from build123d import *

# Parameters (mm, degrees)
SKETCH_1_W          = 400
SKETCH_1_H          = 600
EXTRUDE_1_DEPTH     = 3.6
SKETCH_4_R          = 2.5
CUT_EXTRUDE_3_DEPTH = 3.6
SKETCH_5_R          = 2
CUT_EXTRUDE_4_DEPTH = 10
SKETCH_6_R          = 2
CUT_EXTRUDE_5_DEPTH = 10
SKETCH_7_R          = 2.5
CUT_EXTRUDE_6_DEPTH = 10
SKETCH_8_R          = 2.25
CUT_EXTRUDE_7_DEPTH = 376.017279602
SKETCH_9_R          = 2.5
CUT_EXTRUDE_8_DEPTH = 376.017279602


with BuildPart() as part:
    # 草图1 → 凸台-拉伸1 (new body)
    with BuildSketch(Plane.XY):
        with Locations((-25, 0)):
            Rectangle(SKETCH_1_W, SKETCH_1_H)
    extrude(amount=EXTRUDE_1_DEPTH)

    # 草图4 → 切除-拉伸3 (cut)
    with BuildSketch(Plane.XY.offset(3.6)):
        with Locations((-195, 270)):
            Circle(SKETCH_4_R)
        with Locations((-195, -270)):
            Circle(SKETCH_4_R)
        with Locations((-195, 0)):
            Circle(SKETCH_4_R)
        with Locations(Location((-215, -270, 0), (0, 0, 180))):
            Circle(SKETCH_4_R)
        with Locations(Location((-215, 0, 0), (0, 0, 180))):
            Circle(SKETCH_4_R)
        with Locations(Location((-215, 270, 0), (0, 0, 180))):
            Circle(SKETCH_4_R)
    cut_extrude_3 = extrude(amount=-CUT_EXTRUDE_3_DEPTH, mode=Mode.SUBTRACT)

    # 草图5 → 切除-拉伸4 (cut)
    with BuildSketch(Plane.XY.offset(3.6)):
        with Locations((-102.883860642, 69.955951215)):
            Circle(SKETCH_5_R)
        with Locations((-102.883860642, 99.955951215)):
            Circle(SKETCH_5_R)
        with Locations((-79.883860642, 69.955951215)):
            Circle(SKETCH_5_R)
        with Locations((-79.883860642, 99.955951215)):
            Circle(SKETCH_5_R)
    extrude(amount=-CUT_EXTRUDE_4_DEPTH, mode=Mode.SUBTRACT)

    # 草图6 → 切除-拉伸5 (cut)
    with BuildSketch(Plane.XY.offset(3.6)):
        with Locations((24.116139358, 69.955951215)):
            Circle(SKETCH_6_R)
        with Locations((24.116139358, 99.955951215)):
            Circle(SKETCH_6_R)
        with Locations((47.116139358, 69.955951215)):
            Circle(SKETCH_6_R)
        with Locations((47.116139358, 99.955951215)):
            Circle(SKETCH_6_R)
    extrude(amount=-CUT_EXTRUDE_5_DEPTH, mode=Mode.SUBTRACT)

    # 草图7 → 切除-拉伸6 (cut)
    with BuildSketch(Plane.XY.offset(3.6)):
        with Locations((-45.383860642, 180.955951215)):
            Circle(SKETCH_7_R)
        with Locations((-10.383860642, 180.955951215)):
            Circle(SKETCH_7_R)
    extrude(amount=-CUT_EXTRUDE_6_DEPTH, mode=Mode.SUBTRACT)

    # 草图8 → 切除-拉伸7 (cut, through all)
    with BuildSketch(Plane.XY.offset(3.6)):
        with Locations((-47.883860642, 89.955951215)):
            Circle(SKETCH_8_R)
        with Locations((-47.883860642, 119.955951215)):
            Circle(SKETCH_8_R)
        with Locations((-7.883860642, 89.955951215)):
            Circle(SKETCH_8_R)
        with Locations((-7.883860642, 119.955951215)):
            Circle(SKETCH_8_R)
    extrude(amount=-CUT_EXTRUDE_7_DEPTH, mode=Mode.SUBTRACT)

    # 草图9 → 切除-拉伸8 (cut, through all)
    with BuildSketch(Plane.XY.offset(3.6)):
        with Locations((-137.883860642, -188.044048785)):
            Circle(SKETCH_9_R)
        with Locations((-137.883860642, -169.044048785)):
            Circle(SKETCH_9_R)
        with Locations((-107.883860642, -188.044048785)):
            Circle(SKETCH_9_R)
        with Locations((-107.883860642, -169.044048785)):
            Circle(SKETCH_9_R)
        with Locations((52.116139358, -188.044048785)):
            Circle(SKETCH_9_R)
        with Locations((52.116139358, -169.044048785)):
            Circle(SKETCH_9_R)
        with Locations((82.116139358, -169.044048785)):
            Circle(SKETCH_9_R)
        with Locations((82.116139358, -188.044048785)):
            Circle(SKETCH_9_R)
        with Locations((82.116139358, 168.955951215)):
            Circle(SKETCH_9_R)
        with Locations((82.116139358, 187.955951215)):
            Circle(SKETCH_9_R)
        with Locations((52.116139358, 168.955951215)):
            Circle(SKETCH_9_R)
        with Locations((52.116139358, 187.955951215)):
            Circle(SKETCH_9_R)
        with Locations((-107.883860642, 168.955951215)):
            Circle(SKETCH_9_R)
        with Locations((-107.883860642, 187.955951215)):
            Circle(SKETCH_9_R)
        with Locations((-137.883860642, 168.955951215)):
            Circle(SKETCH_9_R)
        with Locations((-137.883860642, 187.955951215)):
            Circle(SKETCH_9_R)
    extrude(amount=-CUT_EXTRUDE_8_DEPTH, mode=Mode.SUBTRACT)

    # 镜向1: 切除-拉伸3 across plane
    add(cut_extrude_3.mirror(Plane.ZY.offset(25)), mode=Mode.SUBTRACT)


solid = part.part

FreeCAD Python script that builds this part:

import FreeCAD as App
import Part
import Sketcher
Q = App.Units.Quantity


def add_polygon(sketch, points):
    """Adds a closed chain of lines whose ends are joined by coincident constraints."""
    first, n = sketch.GeometryCount, len(points)
    for a, b in zip(points, points[1:] + points[:1]):
        sketch.addGeometry(Part.LineSegment(App.Vector(*a, 0), App.Vector(*b, 0)), False)
    for i in range(n):
        sketch.addConstraint(Sketcher.Constraint("Coincident", first + i, 2, first + (i + 1) % n, 1))

doc = App.newDocument("Part")
body = doc.addObject("PartDesign::Body", "Body")

# Sketch on XY plane
sketch1 = body.newObject("Sketcher::SketchObject", "Sketch")
sketch1.AttachmentSupport = (doc.getObject("XY_Plane"), [""])
sketch1.MapMode = "FlatFace"
add_polygon(sketch1, [(-225, 300), (-225, -300), (175, -300), (175, 300)])  # lines 0-3
sketch1.addConstraint([
    Sketcher.Constraint("Vertical", 0),
    Sketcher.Constraint("Horizontal", 1),
    Sketcher.Constraint("Vertical", 2),
    Sketcher.Constraint("Horizontal", 3),
    Sketcher.Constraint("DistanceX", 1, 1, 1, 2, Q("400 mm")),
    Sketcher.Constraint("DistanceY", 0, 2, 0, 1, Q("600 mm")),
    Sketcher.Constraint("DistanceX", 0, 2, -1, 1, Q("225 mm")),
    Sketcher.Constraint("DistanceY", 0, 2, -1, 1, Q("300 mm")),
])
pad1 = body.newObject("PartDesign::Pad", "Pad")
pad1.Profile = sketch1
pad1.Length = 3.6

# Sketch on XY plane
sketch2 = body.newObject("Sketcher::SketchObject", "Sketch001")
sketch2.AttachmentSupport = (doc.getObject("XY_Plane"), [""])
sketch2.MapMode = "FlatFace"
sketch2.AttachmentOffset = App.Placement(App.Vector(0, 0, 3.6), App.Rotation())
sketch2.addGeometry([
    Part.Circle(App.Vector(-195, 270, 0), App.Vector(0, 0, 1), 2.5),  # 0
    Part.Circle(App.Vector(-195, -270, 0), App.Vector(0, 0, 1), 2.5),  # 1
    Part.Circle(App.Vector(-195, 0, 0), App.Vector(0, 0, 1), 2.5),  # 2
    Part.Circle(App.Vector(-215, -270, 0), App.Vector(0, 0, 1), 2.5),  # 3
    Part.Circle(App.Vector(-215, 0, 0), App.Vector(0, 0, 1), 2.5),  # 4
    Part.Circle(App.Vector(-215, 270, 0), App.Vector(0, 0, 1), 2.5),  # 5
], False)
sketch2.addConstraint([
    Sketcher.Constraint("Equal", 0, 1),
    Sketcher.Constraint("Equal", 1, 2),
    Sketcher.Constraint("Equal", 2, 3),
    Sketcher.Constraint("Equal", 3, 4),
    Sketcher.Constraint("Equal", 4, 5),
    Sketcher.Constraint("Symmetric", 0, 3, 1, 3, -1),
    Sketcher.Constraint("Symmetric", 3, 3, 5, 3, -1),
    Sketcher.Constraint("PointOnObject", 2, 3, -1),
    Sketcher.Constraint("PointOnObject", 4, 3, -1),
    Sketcher.Constraint("Horizontal", 1, 3, 3, 3),
    Sketcher.Constraint("Vertical", 1, 3, 2, 3),
    Sketcher.Constraint("Vertical", 3, 3, 4, 3),
    Sketcher.Constraint("Diameter", 0, Q("5 mm")),
    Sketcher.Constraint("DistanceX", 0, 3, -1, 1, Q("195 mm")),
    Sketcher.Constraint("DistanceY", -1, 1, 0, 3, Q("270 mm")),
    Sketcher.Constraint("DistanceX", 3, 3, -1, 1, Q("215 mm")),
])
pocket1 = body.newObject("PartDesign::Pocket", "Pocket")
pocket1.Profile = sketch2
pocket1.Length = 3.6

# Sketch on XY plane
sketch3 = body.newObject("Sketcher::SketchObject", "Sketch002")
sketch3.AttachmentSupport = (doc.getObject("XY_Plane"), [""])
sketch3.MapMode = "FlatFace"
sketch3.AttachmentOffset = App.Placement(App.Vector(0, 0, 3.6), App.Rotation())
sketch3.addGeometry([
    Part.Circle(App.Vector(-102.883861, 69.955951, 0), App.Vector(0, 0, 1), 2),
    Part.Circle(App.Vector(-102.883861, 99.955951, 0), App.Vector(0, 0, 1), 2),
    Part.Circle(App.Vector(-79.883861, 69.955951, 0), App.Vector(0, 0, 1), 2),
    Part.Circle(App.Vector(-79.883861, 99.955951, 0), App.Vector(0, 0, 1), 2),
], False)
sketch3.addConstraint([
    Sketcher.Constraint("Equal", 0, 1),
    Sketcher.Constraint("Equal", 1, 2),
    Sketcher.Constraint("Equal", 2, 3),
    Sketcher.Constraint("Horizontal", 0, 3, 2, 3),
    Sketcher.Constraint("Horizontal", 1, 3, 3, 3),
    Sketcher.Constraint("Vertical", 0, 3, 1, 3),
    Sketcher.Constraint("Vertical", 2, 3, 3, 3),
    Sketcher.Constraint("Diameter", 0, Q("4 mm")),
    Sketcher.Constraint("DistanceY", 0, 3, 1, 3, Q("30 mm")),
    Sketcher.Constraint("DistanceX", 0, 3, 2, 3, Q("23 mm")),
    Sketcher.Constraint("DistanceX", 0, 3, -1, 1, Q("102.883861 mm")),
    Sketcher.Constraint("DistanceY", -1, 1, 0, 3, Q("69.955951 mm")),
])
pocket2 = body.newObject("PartDesign::Pocket", "Pocket001")
pocket2.Profile = sketch3
pocket2.Length = 10

# Sketch on XY plane
sketch4 = body.newObject("Sketcher::SketchObject", "Sketch003")
sketch4.AttachmentSupport = (doc.getObject("XY_Plane"), [""])
sketch4.MapMode = "FlatFace"
sketch4.AttachmentOffset = App.Placement(App.Vector(0, 0, 3.6), App.Rotation())
sketch4.addGeometry([
    Part.Circle(App.Vector(24.116139, 69.955951, 0), App.Vector(0, 0, 1), 2),
    Part.Circle(App.Vector(24.116139, 99.955951, 0), App.Vector(0, 0, 1), 2),
    Part.Circle(App.Vector(47.116139, 69.955951, 0), App.Vector(0, 0, 1), 2),
    Part.Circle(App.Vector(47.116139, 99.955951, 0), App.Vector(0, 0, 1), 2),
], False)
sketch4.addConstraint([
    Sketcher.Constraint("Equal", 0, 1),
    Sketcher.Constraint("Equal", 1, 2),
    Sketcher.Constraint("Equal", 2, 3),
    Sketcher.Constraint("Horizontal", 0, 3, 2, 3),
    Sketcher.Constraint("Horizontal", 1, 3, 3, 3),
    Sketcher.Constraint("Vertical", 0, 3, 1, 3),
    Sketcher.Constraint("Vertical", 2, 3, 3, 3),
    Sketcher.Constraint("Diameter", 0, Q("4 mm")),
    Sketcher.Constraint("DistanceY", 0, 3, 1, 3, Q("30 mm")),
    Sketcher.Constraint("DistanceX", 0, 3, 2, 3, Q("23 mm")),
    Sketcher.Constraint("DistanceX", -1, 1, 0, 3, Q("24.116139 mm")),
    Sketcher.Constraint("DistanceY", -1, 1, 0, 3, Q("69.955951 mm")),
])
pocket3 = body.newObject("PartDesign::Pocket", "Pocket002")
pocket3.Profile = sketch4
pocket3.Length = 10

# Sketch on XY plane
sketch5 = body.newObject("Sketcher::SketchObject", "Sketch004")
sketch5.AttachmentSupport = (doc.getObject("XY_Plane"), [""])
sketch5.MapMode = "FlatFace"
sketch5.AttachmentOffset = App.Placement(App.Vector(0, 0, 3.6), App.Rotation())
sketch5.addGeometry([
    Part.Circle(App.Vector(-45.383861, 180.955951, 0), App.Vector(0, 0, 1), 2.5),
    Part.Circle(App.Vector(-10.383861, 180.955951, 0), App.Vector(0, 0, 1), 2.5),
], False)
sketch5.addConstraint([
    Sketcher.Constraint("Equal", 0, 1),
    Sketcher.Constraint("Horizontal", 0, 3, 1, 3),
    Sketcher.Constraint("Diameter", 0, Q("5 mm")),
    Sketcher.Constraint("DistanceX", 0, 3, 1, 3, Q("35 mm")),
    Sketcher.Constraint("DistanceX", 0, 3, -1, 1, Q("45.383861 mm")),
    Sketcher.Constraint("DistanceY", -1, 1, 0, 3, Q("180.955951 mm")),
])
pocket4 = body.newObject("PartDesign::Pocket", "Pocket003")
pocket4.Profile = sketch5
pocket4.Length = 10

# Sketch on XY plane
sketch6 = body.newObject("Sketcher::SketchObject", "Sketch005")
sketch6.AttachmentSupport = (doc.getObject("XY_Plane"), [""])
sketch6.MapMode = "FlatFace"
sketch6.AttachmentOffset = App.Placement(App.Vector(0, 0, 3.6), App.Rotation())
sketch6.addGeometry([
    Part.Circle(App.Vector(-47.883861, 89.955951, 0), App.Vector(0, 0, 1), 2.25),
    Part.Circle(App.Vector(-47.883861, 119.955951, 0), App.Vector(0, 0, 1), 2.25),
    Part.Circle(App.Vector(-7.883861, 89.955951, 0), App.Vector(0, 0, 1), 2.25),
    Part.Circle(App.Vector(-7.883861, 119.955951, 0), App.Vector(0, 0, 1), 2.25),
], False)
sketch6.addConstraint([
    Sketcher.Constraint("Equal", 0, 1),
    Sketcher.Constraint("Equal", 1, 2),
    Sketcher.Constraint("Equal", 2, 3),
    Sketcher.Constraint("Horizontal", 0, 3, 2, 3),
    Sketcher.Constraint("Horizontal", 1, 3, 3, 3),
    Sketcher.Constraint("Vertical", 0, 3, 1, 3),
    Sketcher.Constraint("Vertical", 2, 3, 3, 3),
    Sketcher.Constraint("Diameter", 0, Q("4.5 mm")),
    Sketcher.Constraint("DistanceY", 0, 3, 1, 3, Q("30 mm")),
    Sketcher.Constraint("DistanceX", 0, 3, 2, 3, Q("40 mm")),
    Sketcher.Constraint("DistanceX", 0, 3, -1, 1, Q("47.883861 mm")),
    Sketcher.Constraint("DistanceY", -1, 1, 0, 3, Q("89.955951 mm")),
])
pocket5 = body.newObject("PartDesign::Pocket", "Pocket004")
pocket5.Profile = sketch6
pocket5.Type = "ThroughAll"

# Sketch on XY plane
sketch7 = body.newObject("Sketcher::SketchObject", "Sketch006")
sketch7.AttachmentSupport = (doc.getObject("XY_Plane"), [""])
sketch7.MapMode = "FlatFace"
sketch7.AttachmentOffset = App.Placement(App.Vector(0, 0, 3.6), App.Rotation())
sketch7.addGeometry([
    Part.Circle(App.Vector(-137.883861, -188.044049, 0), App.Vector(0, 0, 1), 2.5),  # 0
    Part.Circle(App.Vector(-137.883861, -169.044049, 0), App.Vector(0, 0, 1), 2.5),  # 1
    Part.Circle(App.Vector(-107.883861, -188.044049, 0), App.Vector(0, 0, 1), 2.5),  # 2
    Part.Circle(App.Vector(-107.883861, -169.044049, 0), App.Vector(0, 0, 1), 2.5),  # 3
    Part.Circle(App.Vector(52.116139, -188.044049, 0), App.Vector(0, 0, 1), 2.5),  # 4
    Part.Circle(App.Vector(52.116139, -169.044049, 0), App.Vector(0, 0, 1), 2.5),  # 5
    Part.Circle(App.Vector(82.116139, -169.044049, 0), App.Vector(0, 0, 1), 2.5),  # 6
    Part.Circle(App.Vector(82.116139, -188.044049, 0), App.Vector(0, 0, 1), 2.5),  # 7
    Part.Circle(App.Vector(82.116139, 168.955951, 0), App.Vector(0, 0, 1), 2.5),  # 8
    Part.Circle(App.Vector(82.116139, 187.955951, 0), App.Vector(0, 0, 1), 2.5),  # 9
    Part.Circle(App.Vector(52.116139, 168.955951, 0), App.Vector(0, 0, 1), 2.5),  # 10
    Part.Circle(App.Vector(52.116139, 187.955951, 0), App.Vector(0, 0, 1), 2.5),  # 11
    Part.Circle(App.Vector(-107.883861, 168.955951, 0), App.Vector(0, 0, 1), 2.5),  # 12
    Part.Circle(App.Vector(-107.883861, 187.955951, 0), App.Vector(0, 0, 1), 2.5),  # 13
    Part.Circle(App.Vector(-137.883861, 168.955951, 0), App.Vector(0, 0, 1), 2.5),  # 14
    Part.Circle(App.Vector(-137.883861, 187.955951, 0), App.Vector(0, 0, 1), 2.5),  # 15
], False)
sketch7.addConstraint([
    Sketcher.Constraint("Equal", 0, 1),
    Sketcher.Constraint("Equal", 1, 2),
    Sketcher.Constraint("Equal", 2, 3),
    Sketcher.Constraint("Equal", 3, 4),
    Sketcher.Constraint("Equal", 4, 5),
    Sketcher.Constraint("Equal", 5, 6),
    Sketcher.Constraint("Equal", 6, 7),
    Sketcher.Constraint("Equal", 7, 8),
    Sketcher.Constraint("Equal", 8, 9),
    Sketcher.Constraint("Equal", 9, 10),
    Sketcher.Constraint("Equal", 10, 11),
    Sketcher.Constraint("Equal", 11, 12),
    Sketcher.Constraint("Equal", 12, 13),
    Sketcher.Constraint("Equal", 13, 14),
    Sketcher.Constraint("Equal", 14, 15),
    Sketcher.Constraint("Horizontal", 0, 3, 2, 3),
    Sketcher.Constraint("Horizontal", 1, 3, 3, 3),
    Sketcher.Constraint("Horizontal", 2, 3, 4, 3),
    Sketcher.Constraint("Horizontal", 3, 3, 5, 3),
    Sketcher.Constraint("Horizontal", 5, 3, 6, 3),
    Sketcher.Constraint("Horizontal", 4, 3, 7, 3),
    Sketcher.Constraint("Horizontal", 8, 3, 10, 3),
    Sketcher.Constraint("Horizontal", 9, 3, 11, 3),
    Sketcher.Constraint("Horizontal", 10, 3, 12, 3),
    Sketcher.Constraint("Horizontal", 11, 3, 13, 3),
    Sketcher.Constraint("Horizontal", 12, 3, 14, 3),
    Sketcher.Constraint("Horizontal", 13, 3, 15, 3),
    Sketcher.Constraint("Vertical", 0, 3, 1, 3),
    Sketcher.Constraint("Vertical", 2, 3, 3, 3),
    Sketcher.Constraint("Vertical", 4, 3, 5, 3),
    Sketcher.Constraint("Vertical", 6, 3, 7, 3),
    Sketcher.Constraint("Vertical", 7, 3, 8, 3),
    Sketcher.Constraint("Vertical", 8, 3, 9, 3),
    Sketcher.Constraint("Vertical", 5, 3, 10, 3),
    Sketcher.Constraint("Vertical", 10, 3, 11, 3),
    Sketcher.Constraint("Vertical", 3, 3, 12, 3),
    Sketcher.Constraint("Vertical", 12, 3, 13, 3),
    Sketcher.Constraint("Vertical", 1, 3, 14, 3),
    Sketcher.Constraint("Vertical", 14, 3, 15, 3),
    Sketcher.Constraint("Diameter", 0, Q("5 mm")),
    Sketcher.Constraint("DistanceY", 0, 3, 1, 3, Q("19 mm")),
    Sketcher.Constraint("DistanceX", 0, 3, 2, 3, Q("30 mm")),
    Sketcher.Constraint("DistanceX", 2, 3, 4, 3, Q("160 mm")),
    Sketcher.Constraint("DistanceX", 5, 3, 6, 3, Q("30 mm")),
    Sketcher.Constraint("DistanceY", 6, 3, 8, 3, Q("338 mm")),
    Sketcher.Constraint("DistanceY", 8, 3, 9, 3, Q("19 mm")),
    Sketcher.Constraint("DistanceX", 0, 3, -1, 1, Q("137.883861 mm")),
    Sketcher.Constraint("DistanceY", 0, 3, -1, 1, Q("188.044049 mm")),
])
pocket6 = body.newObject("PartDesign::Pocket", "Pocket005")
pocket6.Profile = sketch7
pocket6.Type = "ThroughAll"
doc.recompute()

datumplane = body.newObject("PartDesign::Plane", "DatumPlane")
datumplane.AttachmentSupport = (doc.getObject("YZ_Plane"), [""])
datumplane.MapMode = "FlatFace"
datumplane.AttachmentOffset = App.Placement(App.Vector(0, 0, -25), App.Rotation())
mirrored = body.newObject("PartDesign::Mirrored", "Mirrored")
mirrored.Originals = [pocket1]
mirrored.MirrorPlane = (datumplane, [""])
body.Tip = mirrored

doc.recompute()
